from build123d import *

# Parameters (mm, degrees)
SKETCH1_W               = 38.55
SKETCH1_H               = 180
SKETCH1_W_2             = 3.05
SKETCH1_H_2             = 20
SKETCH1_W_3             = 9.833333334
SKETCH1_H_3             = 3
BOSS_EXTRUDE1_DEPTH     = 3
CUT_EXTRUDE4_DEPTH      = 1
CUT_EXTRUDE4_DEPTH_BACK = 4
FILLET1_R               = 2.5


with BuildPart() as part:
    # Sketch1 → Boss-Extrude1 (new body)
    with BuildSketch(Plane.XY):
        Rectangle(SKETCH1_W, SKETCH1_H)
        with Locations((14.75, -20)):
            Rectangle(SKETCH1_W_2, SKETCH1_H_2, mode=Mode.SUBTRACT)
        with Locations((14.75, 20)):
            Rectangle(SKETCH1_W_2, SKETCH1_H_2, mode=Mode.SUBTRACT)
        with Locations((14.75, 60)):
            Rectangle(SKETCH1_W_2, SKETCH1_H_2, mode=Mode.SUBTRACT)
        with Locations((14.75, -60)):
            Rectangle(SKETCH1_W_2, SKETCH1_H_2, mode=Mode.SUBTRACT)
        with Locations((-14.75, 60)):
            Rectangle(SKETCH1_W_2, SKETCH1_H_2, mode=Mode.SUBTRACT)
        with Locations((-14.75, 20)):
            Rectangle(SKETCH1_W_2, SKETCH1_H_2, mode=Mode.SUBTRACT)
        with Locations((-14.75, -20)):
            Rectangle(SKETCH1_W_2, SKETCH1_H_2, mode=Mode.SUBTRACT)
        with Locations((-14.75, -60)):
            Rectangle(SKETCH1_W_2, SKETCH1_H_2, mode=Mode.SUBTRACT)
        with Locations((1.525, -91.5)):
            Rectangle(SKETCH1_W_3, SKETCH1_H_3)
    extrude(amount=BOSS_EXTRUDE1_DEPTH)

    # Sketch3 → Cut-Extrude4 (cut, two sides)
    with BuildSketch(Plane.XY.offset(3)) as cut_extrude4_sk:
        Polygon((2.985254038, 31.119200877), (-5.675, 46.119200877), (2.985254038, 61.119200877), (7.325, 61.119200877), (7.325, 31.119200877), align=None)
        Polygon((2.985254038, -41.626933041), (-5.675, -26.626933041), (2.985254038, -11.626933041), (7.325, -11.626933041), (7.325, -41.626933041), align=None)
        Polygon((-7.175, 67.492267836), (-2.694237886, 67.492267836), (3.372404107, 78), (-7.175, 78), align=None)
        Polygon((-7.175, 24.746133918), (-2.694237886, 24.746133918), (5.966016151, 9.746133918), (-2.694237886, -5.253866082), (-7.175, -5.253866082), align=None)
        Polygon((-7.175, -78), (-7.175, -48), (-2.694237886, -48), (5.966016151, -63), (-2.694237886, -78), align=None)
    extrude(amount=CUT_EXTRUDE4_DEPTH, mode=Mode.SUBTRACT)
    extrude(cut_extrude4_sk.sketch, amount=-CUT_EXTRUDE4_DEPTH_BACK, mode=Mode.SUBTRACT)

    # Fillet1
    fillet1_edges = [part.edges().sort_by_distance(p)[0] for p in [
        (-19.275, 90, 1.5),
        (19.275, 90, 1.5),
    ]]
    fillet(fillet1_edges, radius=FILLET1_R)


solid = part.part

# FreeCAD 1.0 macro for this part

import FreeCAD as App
import Part
import Sketcher
Q = App.Units.Quantity


def edges_at(feature, points):
    """Names of the edges that pass closest to the given points."""
    edges = feature.Shape.Edges
    near = lambda p: min(range(len(edges)), key=lambda i: edges[i].distToShape(Part.Vertex(*p))[0])
    return sorted({f"Edge{near(p) + 1}" for p in points})

doc = App.newDocument("Part")
params = doc.addObject("Spreadsheet::Sheet", "Params")
for row, (alias, value) in enumerate([
    ("sketch1_height", "180 mm"),
    ("sketch1_height2", "3 mm"),
    ("sketch1_height3", "20 mm"),
    ("sketch1_width", "38.55 mm"),
    ("sketch1_width2", "3.05 mm"),
    ("pad1_length", "3 mm"),
    ("sketch2_height", "30 mm"),
    ("fillet_radius", "2.5 mm"),
], start=1):
    params.set(f"A{row}", alias)
    params.set(f"B{row}", "=" + value)
    params.setAlias(f"B{row}", alias)

body = doc.addObject("PartDesign::Body", "Body")

sketch1 = doc.addObject("Sketcher::SketchObject", "Sketch")
body.addObject(sketch1)
sketch1.AttachmentSupport = (doc.XY_Plane, [""])
sketch1.MapMode = "FlatFace"
sketch1.addGeometry(Part.LineSegment(App.Vector(-19.275, 90, 0), App.Vector(-19.275, -90, 0)), False)
sketch1.addGeometry(Part.LineSegment(App.Vector(-19.275, -90, 0), App.Vector(-3.391667, -90, 0)), False)
sketch1.addGeometry(Part.LineSegment(App.Vector(-3.391667, -90, 0), App.Vector(-3.391667, -93, 0)), False)
sketch1.addGeometry(Part.LineSegment(App.Vector(-3.391667, -93, 0), App.Vector(6.441667, -93, 0)), False)
sketch1.addGeometry(Part.LineSegment(App.Vector(6.441667, -93, 0), App.Vector(6.441667, -90, 0)), False)
sketch1.addGeometry(Part.LineSegment(App.Vector(6.441667, -90, 0), App.Vector(19.275, -90, 0)), False)
sketch1.addGeometry(Part.LineSegment(App.Vector(19.275, -90, 0), App.Vector(19.275, 90, 0)), False)
sketch1.addGeometry(Part.LineSegment(App.Vector(19.275, 90, 0), App.Vector(-19.275, 90, 0)), False)
sketch1.addGeometry(Part.LineSegment(App.Vector(-13.225, -70, 0), App.Vector(-16.275, -70, 0)), False)
sketch1.addGeometry(Part.LineSegment(App.Vector(-16.275, -70, 0), App.Vector(-16.275, -50, 0)), False)
sketch1.addGeometry(Part.LineSegment(App.Vector(-16.275, -50, 0), App.Vector(-13.225, -50, 0)), False)
sketch1.addGeometry(Part.LineSegment(App.Vector(-13.225, -50, 0), App.Vector(-13.225, -70, 0)), False)
sketch1.addGeometry(Part.LineSegment(App.Vector(-13.225, -30, 0), App.Vector(-16.275, -30, 0)), False)
sketch1.addGeometry(Part.LineSegment(App.Vector(-16.275, -30, 0), App.Vector(-16.275, -10, 0)), False)
sketch1.addGeometry(Part.LineSegment(App.Vector(-16.275, -10, 0), App.Vector(-13.225, -10, 0)), False)
sketch1.addGeometry(Part.LineSegment(App.Vector(-13.225, -10, 0), App.Vector(-13.225, -30, 0)), False)
sketch1.addGeometry(Part.LineSegment(App.Vector(16.275, -70, 0), App.Vector(13.225, -70, 0)), False)
sketch1.addGeometry(Part.LineSegment(App.Vector(13.225, -70, 0), App.Vector(13.225, -50, 0)), False)
sketch1.addGeometry(Part.LineSegment(App.Vector(13.225, -50, 0), App.Vector(16.275, -50, 0)), False)
sketch1.addGeometry(Part.LineSegment(App.Vector(16.275, -50, 0), App.Vector(16.275, -70, 0)), False)
sketch1.addGeometry(Part.LineSegment(App.Vector(16.275, -30, 0), App.Vector(13.225, -30, 0)), False)
sketch1.addGeometry(Part.LineSegment(App.Vector(13.225, -30, 0), App.Vector(13.225, -10, 0)), False)
sketch1.addGeometry(Part.LineSegment(App.Vector(13.225, -10, 0), App.Vector(16.275, -10, 0)), False)
sketch1.addGeometry(Part.LineSegment(App.Vector(16.275, -10, 0), App.Vector(16.275, -30, 0)), False)
sketch1.addGeometry(Part.LineSegment(App.Vector(-13.225, 10, 0), App.Vector(-16.275, 10, 0)), False)
sketch1.addGeometry(Part.LineSegment(App.Vector(-16.275, 10, 0), App.Vector(-16.275, 30, 0)), False)
sketch1.addGeometry(Part.LineSegment(App.Vector(-16.275, 30, 0), App.Vector(-13.225, 30, 0)), False)
sketch1.addGeometry(Part.LineSegment(App.Vector(-13.225, 30, 0), App.Vector(-13.225, 10, 0)), False)
sketch1.addGeometry(Part.LineSegment(App.Vector(-13.225, 50, 0), App.Vector(-16.275, 50, 0)), False)
sketch1.addGeometry(Part.LineSegment(App.Vector(-16.275, 50, 0), App.Vector(-16.275, 70, 0)), False)
sketch1.addGeometry(Part.LineSegment(App.Vector(-16.275, 70, 0), App.Vector(-13.225, 70, 0)), False)
sketch1.addGeometry(Part.LineSegment(App.Vector(-13.225, 70, 0), App.Vector(-13.225, 50, 0)), False)
sketch1.addGeometry(Part.LineSegment(App.Vector(16.275, 10, 0), App.Vector(13.225, 10, 0)), False)
sketch1.addGeometry(Part.LineSegment(App.Vector(13.225, 10, 0), App.Vector(13.225, 30, 0)), False)
sketch1.addGeometry(Part.LineSegment(App.Vector(13.225, 30, 0), App.Vector(16.275, 30, 0)), False)
sketch1.addGeometry(Part.LineSegment(App.Vector(16.275, 30, 0), App.Vector(16.275, 10, 0)), False)
sketch1.addGeometry(Part.LineSegment(App.Vector(16.275, 50, 0), App.Vector(13.225, 50, 0)), False)
sketch1.addGeometry(Part.LineSegment(App.Vector(13.225, 50, 0), App.Vector(13.225, 70, 0)), False)
sketch1.addGeometry(Part.LineSegment(App.Vector(13.225, 70, 0), App.Vector(16.275, 70, 0)), False)
sketch1.addGeometry(Part.LineSegment(App.Vector(16.275, 70, 0), App.Vector(16.275, 50, 0)), False)
sketch1.addConstraint(Sketcher.Constraint("Coincident", 0, 2, 1, 1))
sketch1.addConstraint(Sketcher.Constraint("Coincident", 1, 2, 2, 1))
sketch1.addConstraint(Sketcher.Constraint("Coincident", 2, 2, 3, 1))
sketch1.addConstraint(Sketcher.Constraint("Coincident", 3, 2, 4, 1))
sketch1.addConstraint(Sketcher.Constraint("Coincident", 4, 2, 5, 1))
sketch1.addConstraint(Sketcher.Constraint("Coincident", 5, 2, 6, 1))
sketch1.addConstraint(Sketcher.Constraint("Coincident", 6, 2, 7, 1))
sketch1.addConstraint(Sketcher.Constraint("Coincident", 7, 2, 0, 1))
sketch1.addConstraint(Sketcher.Constraint("Coincident", 8, 2, 9, 1))
sketch1.addConstraint(Sketcher.Constraint("Coincident", 9, 2, 10, 1))
sketch1.addConstraint(Sketcher.Constraint("Coincident", 10, 2, 11, 1))
sketch1.addConstraint(Sketcher.Constraint("Coincident", 11, 2, 8, 1))
sketch1.addConstraint(Sketcher.Constraint("Coincident", 12, 2, 13, 1))
sketch1.addConstraint(Sketcher.Constraint("Coincident", 13, 2, 14, 1))
sketch1.addConstraint(Sketcher.Constraint("Coincident", 14, 2, 15, 1))
sketch1.addConstraint(Sketcher.Constraint("Coincident", 15, 2, 12, 1))
sketch1.addConstraint(Sketcher.Constraint("Coincident", 16, 2, 17, 1))
sketch1.addConstraint(Sketcher.Constraint("Coincident", 17, 2, 18, 1))
sketch1.addConstraint(Sketcher.Constraint("Coincident", 18, 2, 19, 1))
sketch1.addConstraint(Sketcher.Constraint("Coincident", 19, 2, 16, 1))
sketch1.addConstraint(Sketcher.Constraint("Coincident", 20, 2, 21, 1))
sketch1.addConstraint(Sketcher.Constraint("Coincident", 21, 2, 22, 1))
sketch1.addConstraint(Sketcher.Constraint("Coincident", 22, 2, 23, 1))
sketch1.addConstraint(Sketcher.Constraint("Coincident", 23, 2, 20, 1))
sketch1.addConstraint(Sketcher.Constraint("Coincident", 24, 2, 25, 1))
sketch1.addConstraint(Sketcher.Constraint("Coincident", 25, 2, 26, 1))
sketch1.addConstraint(Sketcher.Constraint("Coincident", 26, 2, 27, 1))
sketch1.addConstraint(Sketcher.Constraint("Coincident", 27, 2, 24, 1))
sketch1.addConstraint(Sketcher.Constraint("Coincident", 28, 2, 29, 1))
sketch1.addConstraint(Sketcher.Constraint("Coincident", 29, 2, 30, 1))
sketch1.addConstraint(Sketcher.Constraint("Coincident", 30, 2, 31, 1))
sketch1.addConstraint(Sketcher.Constraint("Coincident", 31, 2, 28, 1))
sketch1.addConstraint(Sketcher.Constraint("Coincident", 32, 2, 33, 1))
sketch1.addConstraint(Sketcher.Constraint("Coincident", 33, 2, 34, 1))
sketch1.addConstraint(Sketcher.Constraint("Coincident", 34, 2, 35, 1))
sketch1.addConstraint(Sketcher.Constraint("Coincident", 35, 2, 32, 1))
sketch1.addConstraint(Sketcher.Constraint("Coincident", 36, 2, 37, 1))
sketch1.addConstraint(Sketcher.Constraint("Coincident", 37, 2, 38, 1))
sketch1.addConstraint(Sketcher.Constraint("Coincident", 38, 2, 39, 1))
sketch1.addConstraint(Sketcher.Constraint("Coincident", 39, 2, 36, 1))
sketch1.addConstraint(Sketcher.Constraint("Vertical", 0))
sketch1.addConstraint(Sketcher.Constraint("Horizontal", 1))
sketch1.addConstraint(Sketcher.Constraint("Vertical", 2))
sketch1.addConstraint(Sketcher.Constraint("Horizontal", 3))
sketch1.addConstraint(Sketcher.Constraint("Vertical", 4))
sketch1.addConstraint(Sketcher.Constraint("Horizontal", 5))
sketch1.addConstraint(Sketcher.Constraint("Vertical", 6))
sketch1.addConstraint(Sketcher.Constraint("Horizontal", 7))
sketch1.addConstraint(Sketcher.Constraint("Horizontal", 8))
sketch1.addConstraint(Sketcher.Constraint("Vertical", 9))
sketch1.addConstraint(Sketcher.Constraint("Horizontal", 10))
sketch1.addConstraint(Sketcher.Constraint("Vertical", 11))
sketch1.addConstraint(Sketcher.Constraint("Horizontal", 12))
sketch1.addConstraint(Sketcher.Constraint("Vertical", 13))
sketch1.addConstraint(Sketcher.Constraint("Horizontal", 14))
sketch1.addConstraint(Sketcher.Constraint("Vertical", 15))
sketch1.addConstraint(Sketcher.Constraint("Horizontal", 16))
sketch1.addConstraint(Sketcher.Constraint("Vertical", 17))
sketch1.addConstraint(Sketcher.Constraint("Horizontal", 18))
sketch1.addConstraint(Sketcher.Constraint("Vertical", 19))
sketch1.addConstraint(Sketcher.Constraint("Horizontal", 20))
sketch1.addConstraint(Sketcher.Constraint("Vertical", 21))
sketch1.addConstraint(Sketcher.Constraint("Horizontal", 22))
sketch1.addConstraint(Sketcher.Constraint("Vertical", 23))
sketch1.addConstraint(Sketcher.Constraint("Horizontal", 24))
sketch1.addConstraint(Sketcher.Constraint("Vertical", 25))
sketch1.addConstraint(Sketcher.Constraint("Horizontal", 26))
sketch1.addConstraint(Sketcher.Constraint("Vertical", 27))
sketch1.addConstraint(Sketcher.Constraint("Horizontal", 28))
sketch1.addConstraint(Sketcher.Constraint("Vertical", 29))
sketch1.addConstraint(Sketcher.Constraint("Horizontal", 30))
sketch1.addConstraint(Sketcher.Constraint("Vertical", 31))
sketch1.addConstraint(Sketcher.Constraint("Horizontal", 32))
sketch1.addConstraint(Sketcher.Constraint("Vertical", 33))
sketch1.addConstraint(Sketcher.Constraint("Horizontal", 34))
sketch1.addConstraint(Sketcher.Constraint("Vertical", 35))
sketch1.addConstraint(Sketcher.Constraint("Horizontal", 36))
sketch1.addConstraint(Sketcher.Constraint("Vertical", 37))
sketch1.addConstraint(Sketcher.Constraint("Horizontal", 38))
sketch1.addConstraint(Sketcher.Constraint("Vertical", 39))
sketch1.addConstraint(Sketcher.Constraint("Symmetric", 0, 2, 6, 2, -1, 1))
sketch1.addConstraint(Sketcher.Constraint("Symmetric", 22, 2, 24, 2, -1, 1))
sketch1.addConstraint(Sketcher.Constraint("Symmetric", 20, 2, 26, 2, -1, 1))
sketch1.addConstraint(Sketcher.Constraint("Symmetric", 18, 2, 28, 2, -1, 1))
sketch1.addConstraint(Sketcher.Constraint("Symmetric", 16, 2, 30, 2, -1, 1))
sketch1.addConstraint(Sketcher.Constraint("Symmetric", 14, 2, 32, 2, -1, 1))
sketch1.addConstraint(Sketcher.Constraint("Symmetric", 12, 2, 34, 2, -1, 1))
sketch1.addConstraint(Sketcher.Constraint("Symmetric", 10, 2, 36, 2, -1, 1))
sketch1.addConstraint(Sketcher.Constraint("Symmetric", 8, 2, 38, 2, -1, 1))
sketch1.addConstraint(Sketcher.Constraint("Symmetric", 11, 2, 16, 2, -2))
sketch1.addConstraint(Sketcher.Constraint("Symmetric", 9, 2, 18, 2, -2))
sketch1.addConstraint(Sketcher.Constraint("Symmetric", 15, 2, 20, 2, -2))
sketch1.addConstraint(Sketcher.Constraint("Symmetric", 13, 2, 22, 2, -2))
sketch1.addConstraint(Sketcher.Constraint("Horizontal", 1, 2, 4, 2))
sketch1.addConstraint(Sketcher.Constraint("Vertical", 9, 2, 12, 2))
sketch1.addConstraint(Sketcher.Constraint("Vertical", 11, 2, 14, 2))
sketch1.addConstraint(Sketcher.Constraint("Equal", 11, 13))
sketch1.addConstraint(Sketcher.Constraint("DistanceY", 0, 2, 0, 1, Q("180 mm")))
sketch1.addConstraint(Sketcher.Constraint("DistanceY", 2, 2, 2, 1, Q("3 mm")))
sketch1.addConstraint(Sketcher.Constraint("DistanceY", 9, 1, 9, 2, Q("20 mm")))
sketch1.addConstraint(Sketcher.Constraint("DistanceY", 8, 2, -1, 1, Q("70 mm")))
sketch1.addConstraint(Sketcher.Constraint("DistanceY", 12, 2, -1, 1, Q("30 mm")))
sketch1.addConstraint(Sketcher.Constraint("DistanceX", 0, 2, 8, 2, Q("3 mm")))
sketch1.addConstraint(Sketcher.Constraint("DistanceX", 7, 2, 7, 1, Q("38.55 mm")))
sketch1.addConstraint(Sketcher.Constraint("DistanceX", 8, 2, 8, 1, Q("3.05 mm")))
sketch1.addConstraint(Sketcher.Constraint("DistanceX", 1, 1, 1, 2, Q("15.883333 mm")))
sketch1.addConstraint(Sketcher.Constraint("DistanceX", 3, 1, 3, 2, Q("9.833333 mm")))
sketch1.setExpression("Constraints[97]", "Params.sketch1_height")
sketch1.setExpression("Constraints[98]", "Params.sketch1_height2")
sketch1.setExpression("Constraints[99]", "Params.sketch1_height3")
sketch1.setExpression("Constraints[103]", "Params.sketch1_width")
sketch1.setExpression("Constraints[104]", "Params.sketch1_width2")
pad1 = doc.addObject("PartDesign::Pad", "Pad")
body.addObject(pad1)
pad1.Profile = sketch1
pad1.setExpression("Length", "Params.pad1_length")

sketch2 = doc.addObject("Sketcher::SketchObject", "Sketch001")
body.addObject(sketch2)
sketch2.AttachmentSupport = (doc.XY_Plane, [""])
sketch2.MapMode = "FlatFace"
sketch2.AttachmentOffset = App.Placement(App.Vector(0, 0, 3), App.Rotation())
sketch2.addGeometry(Part.LineSegment(App.Vector(-5.675, 46.119201, 0), App.Vector(2.985254, 31.119201, 0)), False)
sketch2.addGeometry(Part.LineSegment(App.Vector(2.985254, 31.119201, 0), App.Vector(7.325, 31.119201, 0)), False)
sketch2.addGeometry(Part.LineSegment(App.Vector(7.325, 31.119201, 0), App.Vector(7.325, 61.119201, 0)), False)
sketch2.addGeometry(Part.LineSegment(App.Vector(7.325, 61.119201, 0), App.Vector(2.985254, 61.119201, 0)), False)
sketch2.addGeometry(Part.LineSegment(App.Vector(2.985254, 61.119201, 0), App.Vector(-5.675, 46.119201, 0)), False)
sketch2.addGeometry(Part.LineSegment(App.Vector(-5.675, -26.626933, 0), App.Vector(2.985254, -41.626933, 0)), False)
sketch2.addGeometry(Part.LineSegment(App.Vector(2.985254, -41.626933, 0), App.Vector(7.325, -41.626933, 0)), False)
sketch2.addGeometry(Part.LineSegment(App.Vector(7.325, -41.626933, 0), App.Vector(7.325, -11.626933, 0)), False)
sketch2.addGeometry(Part.LineSegment(App.Vector(7.325, -11.626933, 0), App.Vector(2.985254, -11.626933, 0)), False)
sketch2.addGeometry(Part.LineSegment(App.Vector(2.985254, -11.626933, 0), App.Vector(-5.675, -26.626933, 0)), False)
sketch2.addGeometry(Part.LineSegment(App.Vector(-7.175, 67.492268, 0), App.Vector(-2.694238, 67.492268, 0)), False)
sketch2.addGeometry(Part.LineSegment(App.Vector(-2.694238, 67.492268, 0), App.Vector(3.372404, 78, 0)), False)
sketch2.addGeometry(Part.LineSegment(App.Vector(3.372404, 78, 0), App.Vector(-7.175, 78, 0)), False)
sketch2.addGeometry(Part.LineSegment(App.Vector(-7.175, 78, 0), App.Vector(-7.175, 67.492268, 0)), False)
sketch2.addGeometry(Part.LineSegment(App.Vector(-2.694238, 24.746134, 0), App.Vector(-7.175, 24.746134, 0)), False)
sketch2.addGeometry(Part.LineSegment(App.Vector(-7.175, 24.746134, 0), App.Vector(-7.175, -5.253866, 0)), False)
sketch2.addGeometry(Part.LineSegment(App.Vector(-7.175, -5.253866, 0), App.Vector(-2.694238, -5.253866, 0)), False)
sketch2.addGeometry(Part.LineSegment(App.Vector(-2.694238, -5.253866, 0), App.Vector(5.966016, 9.746134, 0)), False)
sketch2.addGeometry(Part.LineSegment(App.Vector(5.966016, 9.746134, 0), App.Vector(-2.694238, 24.746134, 0)), False)
sketch2.addGeometry(Part.LineSegment(App.Vector(-7.175, -48, 0), App.Vector(-7.175, -78, 0)), False)
sketch2.addGeometry(Part.LineSegment(App.Vector(-7.175, -78, 0), App.Vector(-2.694238, -78, 0)), False)
sketch2.addGeometry(Part.LineSegment(App.Vector(-2.694238, -78, 0), App.Vector(5.966016, -63, 0)), False)
sketch2.addGeometry(Part.LineSegment(App.Vector(5.966016, -63, 0), App.Vector(-2.694238, -48, 0)), False)
sketch2.addGeometry(Part.LineSegment(App.Vector(-2.694238, -48, 0), App.Vector(-7.175, -48, 0)), False)
sketch2.addConstraint(Sketcher.Constraint("Coincident", 0, 2, 1, 1))
sketch2.addConstraint(Sketcher.Constraint("Coincident", 1, 2, 2, 1))
sketch2.addConstraint(Sketcher.Constraint("Coincident", 2, 2, 3, 1))
sketch2.addConstraint(Sketcher.Constraint("Coincident", 3, 2, 4, 1))
sketch2.addConstraint(Sketcher.Constraint("Coincident", 4, 2, 0, 1))
sketch2.addConstraint(Sketcher.Constraint("Coincident", 5, 2, 6, 1))
sketch2.addConstraint(Sketcher.Constraint("Coincident", 6, 2, 7, 1))
sketch2.addConstraint(Sketcher.Constraint("Coincident", 7, 2, 8, 1))
sketch2.addConstraint(Sketcher.Constraint("Coincident", 8, 2, 9, 1))
sketch2.addConstraint(Sketcher.Constraint("Coincident", 9, 2, 5, 1))
sketch2.addConstraint(Sketcher.Constraint("Coincident", 10, 2, 11, 1))
sketch2.addConstraint(Sketcher.Constraint("Coincident", 11, 2, 12, 1))
sketch2.addConstraint(Sketcher.Constraint("Coincident", 12, 2, 13, 1))
sketch2.addConstraint(Sketcher.Constraint("Coincident", 13, 2, 10, 1))
sketch2.addConstraint(Sketcher.Constraint("Coincident", 14, 2, 15, 1))
sketch2.addConstraint(Sketcher.Constraint("Coincident", 15, 2, 16, 1))
sketch2.addConstraint(Sketcher.Constraint("Coincident", 16, 2, 17, 1))
sketch2.addConstraint(Sketcher.Constraint("Coincident", 17, 2, 18, 1))
sketch2.addConstraint(Sketcher.Constraint("Coincident", 18, 2, 14, 1))
sketch2.addConstraint(Sketcher.Constraint("Coincident", 19, 2, 20, 1))
sketch2.addConstraint(Sketcher.Constraint("Coincident", 20, 2, 21, 1))
sketch2.addConstraint(Sketcher.Constraint("Coincident", 21, 2, 22, 1))
sketch2.addConstraint(Sketcher.Constraint("Coincident", 22, 2, 23, 1))
sketch2.addConstraint(Sketcher.Constraint("Coincident", 23, 2, 19, 1))
sketch2.addConstraint(Sketcher.Constraint("Horizontal", 1))
sketch2.addConstraint(Sketcher.Constraint("Vertical", 2))
sketch2.addConstraint(Sketcher.Constraint("Horizontal", 3))
sketch2.addConstraint(Sketcher.Constraint("Horizontal", 6))
sketch2.addConstraint(Sketcher.Constraint("Vertical", 7))
sketch2.addConstraint(Sketcher.Constraint("Horizontal", 8))
sketch2.addConstraint(Sketcher.Constraint("Horizontal", 10))
sketch2.addConstraint(Sketcher.Constraint("Horizontal", 12))
sketch2.addConstraint(Sketcher.Constraint("Vertical", 13))
sketch2.addConstraint(Sketcher.Constraint("Horizontal", 14))
sketch2.addConstraint(Sketcher.Constraint("Vertical", 15))
sketch2.addConstraint(Sketcher.Constraint("Horizontal", 16))
sketch2.addConstraint(Sketcher.Constraint("Vertical", 19))
sketch2.addConstraint(Sketcher.Constraint("Horizontal", 20))
sketch2.addConstraint(Sketcher.Constraint("Horizontal", 23))
sketch2.addConstraint(Sketcher.Constraint("Symmetric", 12, 2, 19, 2, -1))
sketch2.addConstraint(Sketcher.Constraint("Parallel", 0, 5))
sketch2.addConstraint(Sketcher.Constraint("Parallel", 4, 9))
sketch2.addConstraint(Sketcher.Constraint("Parallel", 9, 11))
sketch2.addConstraint(Sketcher.Constraint("Parallel", 11, 17))
sketch2.addConstraint(Sketcher.Constraint("Parallel", 5, 18))
sketch2.addConstraint(Sketcher.Constraint("Parallel", 17, 21))
sketch2.addConstraint(Sketcher.Constraint("Parallel", 18, 22))
sketch2.addConstraint(Sketcher.Constraint("Vertical", 0, 2, 3, 2))
sketch2.addConstraint(Sketcher.Constraint("Vertical", 3, 2, 5, 2))
sketch2.addConstraint(Sketcher.Constraint("Vertical", 2, 2, 6, 2))
sketch2.addConstraint(Sketcher.Constraint("Vertical", 5, 2, 8, 2))
sketch2.addConstraint(Sketcher.Constraint("Vertical", 4, 2, 9, 2))
sketch2.addConstraint(Sketcher.Constraint("Vertical", 13, 2, 14, 2))
sketch2.addConstraint(Sketcher.Constraint("Vertical", 10, 2, 16, 2))
sketch2.addConstraint(Sketcher.Constraint("Vertical", 16, 2, 18, 2))
sketch2.addConstraint(Sketcher.Constraint("Vertical", 18, 2, 20, 2))
sketch2.addConstraint(Sketcher.Constraint("Vertical", 17, 2, 21, 2))
sketch2.addConstraint(Sketcher.Constraint("Vertical", 20, 2, 22, 2))
sketch2.addConstraint(Sketcher.Constraint("Equal", 7, 15))
sketch2.addConstraint(Sketcher.Constraint("Equal", 0, 4))
sketch2.addConstraint(Sketcher.Constraint("DistanceY", 2, 1, 2, 2, Q("30 mm")))
sketch2.addConstraint(Sketcher.Constraint("Angle", 0, Q("-60 deg")))
sketch2.addConstraint(Sketcher.Constraint("DistanceY", -1, 1, 11, 2, Q("78 mm")))
sketch2.addConstraint(Sketcher.Constraint("DistanceX", 4, 2, 1, 2, Q("13 mm")))
sketch2.addConstraint(Sketcher.Constraint("DistanceX", 12, 2, 2, 2, Q("14.5 mm")))
sketch2.addConstraint(Sketcher.Constraint("DistanceX", -1, 1, 1, 2, Q("7.325 mm")))
sketch2.addConstraint(Sketcher.Constraint("DistanceY", -1, 1, 0, 2, Q("31.119201 mm")))
sketch2.addConstraint(Sketcher.Constraint("DistanceX", 10, 1, 10, 2, Q("4.480762 mm")))
sketch2.addConstraint(Sketcher.Constraint("DistanceX", 12, 2, 12, 1, Q("10.547404 mm")))
sketch2.addConstraint(Sketcher.Constraint("DistanceY", 5, 2, -1, 1, Q("41.626933 mm")))
sketch2.addConstraint(Sketcher.Constraint("DistanceY", -1, 1, 14, 2, Q("24.746134 mm")))
sketch2.setExpression("Constraints[60]", "Params.sketch2_height")
pocket1 = doc.addObject("PartDesign::Pocket", "Pocket")
body.addObject(pocket1)
pocket1.Profile = sketch2
pocket1.Type = "ThroughAll"
pocket1.Midplane = True
doc.recompute()

fillet = doc.addObject("PartDesign::Fillet", "Fillet")
body.addObject(fillet)
fillet.Base = (pocket1, edges_at(pocket1, [(-19.275, 90, 1.5), (19.275, 90, 1.5)]))
fillet.setExpression("Radius", "Params.fillet_radius")

doc.recompute()
